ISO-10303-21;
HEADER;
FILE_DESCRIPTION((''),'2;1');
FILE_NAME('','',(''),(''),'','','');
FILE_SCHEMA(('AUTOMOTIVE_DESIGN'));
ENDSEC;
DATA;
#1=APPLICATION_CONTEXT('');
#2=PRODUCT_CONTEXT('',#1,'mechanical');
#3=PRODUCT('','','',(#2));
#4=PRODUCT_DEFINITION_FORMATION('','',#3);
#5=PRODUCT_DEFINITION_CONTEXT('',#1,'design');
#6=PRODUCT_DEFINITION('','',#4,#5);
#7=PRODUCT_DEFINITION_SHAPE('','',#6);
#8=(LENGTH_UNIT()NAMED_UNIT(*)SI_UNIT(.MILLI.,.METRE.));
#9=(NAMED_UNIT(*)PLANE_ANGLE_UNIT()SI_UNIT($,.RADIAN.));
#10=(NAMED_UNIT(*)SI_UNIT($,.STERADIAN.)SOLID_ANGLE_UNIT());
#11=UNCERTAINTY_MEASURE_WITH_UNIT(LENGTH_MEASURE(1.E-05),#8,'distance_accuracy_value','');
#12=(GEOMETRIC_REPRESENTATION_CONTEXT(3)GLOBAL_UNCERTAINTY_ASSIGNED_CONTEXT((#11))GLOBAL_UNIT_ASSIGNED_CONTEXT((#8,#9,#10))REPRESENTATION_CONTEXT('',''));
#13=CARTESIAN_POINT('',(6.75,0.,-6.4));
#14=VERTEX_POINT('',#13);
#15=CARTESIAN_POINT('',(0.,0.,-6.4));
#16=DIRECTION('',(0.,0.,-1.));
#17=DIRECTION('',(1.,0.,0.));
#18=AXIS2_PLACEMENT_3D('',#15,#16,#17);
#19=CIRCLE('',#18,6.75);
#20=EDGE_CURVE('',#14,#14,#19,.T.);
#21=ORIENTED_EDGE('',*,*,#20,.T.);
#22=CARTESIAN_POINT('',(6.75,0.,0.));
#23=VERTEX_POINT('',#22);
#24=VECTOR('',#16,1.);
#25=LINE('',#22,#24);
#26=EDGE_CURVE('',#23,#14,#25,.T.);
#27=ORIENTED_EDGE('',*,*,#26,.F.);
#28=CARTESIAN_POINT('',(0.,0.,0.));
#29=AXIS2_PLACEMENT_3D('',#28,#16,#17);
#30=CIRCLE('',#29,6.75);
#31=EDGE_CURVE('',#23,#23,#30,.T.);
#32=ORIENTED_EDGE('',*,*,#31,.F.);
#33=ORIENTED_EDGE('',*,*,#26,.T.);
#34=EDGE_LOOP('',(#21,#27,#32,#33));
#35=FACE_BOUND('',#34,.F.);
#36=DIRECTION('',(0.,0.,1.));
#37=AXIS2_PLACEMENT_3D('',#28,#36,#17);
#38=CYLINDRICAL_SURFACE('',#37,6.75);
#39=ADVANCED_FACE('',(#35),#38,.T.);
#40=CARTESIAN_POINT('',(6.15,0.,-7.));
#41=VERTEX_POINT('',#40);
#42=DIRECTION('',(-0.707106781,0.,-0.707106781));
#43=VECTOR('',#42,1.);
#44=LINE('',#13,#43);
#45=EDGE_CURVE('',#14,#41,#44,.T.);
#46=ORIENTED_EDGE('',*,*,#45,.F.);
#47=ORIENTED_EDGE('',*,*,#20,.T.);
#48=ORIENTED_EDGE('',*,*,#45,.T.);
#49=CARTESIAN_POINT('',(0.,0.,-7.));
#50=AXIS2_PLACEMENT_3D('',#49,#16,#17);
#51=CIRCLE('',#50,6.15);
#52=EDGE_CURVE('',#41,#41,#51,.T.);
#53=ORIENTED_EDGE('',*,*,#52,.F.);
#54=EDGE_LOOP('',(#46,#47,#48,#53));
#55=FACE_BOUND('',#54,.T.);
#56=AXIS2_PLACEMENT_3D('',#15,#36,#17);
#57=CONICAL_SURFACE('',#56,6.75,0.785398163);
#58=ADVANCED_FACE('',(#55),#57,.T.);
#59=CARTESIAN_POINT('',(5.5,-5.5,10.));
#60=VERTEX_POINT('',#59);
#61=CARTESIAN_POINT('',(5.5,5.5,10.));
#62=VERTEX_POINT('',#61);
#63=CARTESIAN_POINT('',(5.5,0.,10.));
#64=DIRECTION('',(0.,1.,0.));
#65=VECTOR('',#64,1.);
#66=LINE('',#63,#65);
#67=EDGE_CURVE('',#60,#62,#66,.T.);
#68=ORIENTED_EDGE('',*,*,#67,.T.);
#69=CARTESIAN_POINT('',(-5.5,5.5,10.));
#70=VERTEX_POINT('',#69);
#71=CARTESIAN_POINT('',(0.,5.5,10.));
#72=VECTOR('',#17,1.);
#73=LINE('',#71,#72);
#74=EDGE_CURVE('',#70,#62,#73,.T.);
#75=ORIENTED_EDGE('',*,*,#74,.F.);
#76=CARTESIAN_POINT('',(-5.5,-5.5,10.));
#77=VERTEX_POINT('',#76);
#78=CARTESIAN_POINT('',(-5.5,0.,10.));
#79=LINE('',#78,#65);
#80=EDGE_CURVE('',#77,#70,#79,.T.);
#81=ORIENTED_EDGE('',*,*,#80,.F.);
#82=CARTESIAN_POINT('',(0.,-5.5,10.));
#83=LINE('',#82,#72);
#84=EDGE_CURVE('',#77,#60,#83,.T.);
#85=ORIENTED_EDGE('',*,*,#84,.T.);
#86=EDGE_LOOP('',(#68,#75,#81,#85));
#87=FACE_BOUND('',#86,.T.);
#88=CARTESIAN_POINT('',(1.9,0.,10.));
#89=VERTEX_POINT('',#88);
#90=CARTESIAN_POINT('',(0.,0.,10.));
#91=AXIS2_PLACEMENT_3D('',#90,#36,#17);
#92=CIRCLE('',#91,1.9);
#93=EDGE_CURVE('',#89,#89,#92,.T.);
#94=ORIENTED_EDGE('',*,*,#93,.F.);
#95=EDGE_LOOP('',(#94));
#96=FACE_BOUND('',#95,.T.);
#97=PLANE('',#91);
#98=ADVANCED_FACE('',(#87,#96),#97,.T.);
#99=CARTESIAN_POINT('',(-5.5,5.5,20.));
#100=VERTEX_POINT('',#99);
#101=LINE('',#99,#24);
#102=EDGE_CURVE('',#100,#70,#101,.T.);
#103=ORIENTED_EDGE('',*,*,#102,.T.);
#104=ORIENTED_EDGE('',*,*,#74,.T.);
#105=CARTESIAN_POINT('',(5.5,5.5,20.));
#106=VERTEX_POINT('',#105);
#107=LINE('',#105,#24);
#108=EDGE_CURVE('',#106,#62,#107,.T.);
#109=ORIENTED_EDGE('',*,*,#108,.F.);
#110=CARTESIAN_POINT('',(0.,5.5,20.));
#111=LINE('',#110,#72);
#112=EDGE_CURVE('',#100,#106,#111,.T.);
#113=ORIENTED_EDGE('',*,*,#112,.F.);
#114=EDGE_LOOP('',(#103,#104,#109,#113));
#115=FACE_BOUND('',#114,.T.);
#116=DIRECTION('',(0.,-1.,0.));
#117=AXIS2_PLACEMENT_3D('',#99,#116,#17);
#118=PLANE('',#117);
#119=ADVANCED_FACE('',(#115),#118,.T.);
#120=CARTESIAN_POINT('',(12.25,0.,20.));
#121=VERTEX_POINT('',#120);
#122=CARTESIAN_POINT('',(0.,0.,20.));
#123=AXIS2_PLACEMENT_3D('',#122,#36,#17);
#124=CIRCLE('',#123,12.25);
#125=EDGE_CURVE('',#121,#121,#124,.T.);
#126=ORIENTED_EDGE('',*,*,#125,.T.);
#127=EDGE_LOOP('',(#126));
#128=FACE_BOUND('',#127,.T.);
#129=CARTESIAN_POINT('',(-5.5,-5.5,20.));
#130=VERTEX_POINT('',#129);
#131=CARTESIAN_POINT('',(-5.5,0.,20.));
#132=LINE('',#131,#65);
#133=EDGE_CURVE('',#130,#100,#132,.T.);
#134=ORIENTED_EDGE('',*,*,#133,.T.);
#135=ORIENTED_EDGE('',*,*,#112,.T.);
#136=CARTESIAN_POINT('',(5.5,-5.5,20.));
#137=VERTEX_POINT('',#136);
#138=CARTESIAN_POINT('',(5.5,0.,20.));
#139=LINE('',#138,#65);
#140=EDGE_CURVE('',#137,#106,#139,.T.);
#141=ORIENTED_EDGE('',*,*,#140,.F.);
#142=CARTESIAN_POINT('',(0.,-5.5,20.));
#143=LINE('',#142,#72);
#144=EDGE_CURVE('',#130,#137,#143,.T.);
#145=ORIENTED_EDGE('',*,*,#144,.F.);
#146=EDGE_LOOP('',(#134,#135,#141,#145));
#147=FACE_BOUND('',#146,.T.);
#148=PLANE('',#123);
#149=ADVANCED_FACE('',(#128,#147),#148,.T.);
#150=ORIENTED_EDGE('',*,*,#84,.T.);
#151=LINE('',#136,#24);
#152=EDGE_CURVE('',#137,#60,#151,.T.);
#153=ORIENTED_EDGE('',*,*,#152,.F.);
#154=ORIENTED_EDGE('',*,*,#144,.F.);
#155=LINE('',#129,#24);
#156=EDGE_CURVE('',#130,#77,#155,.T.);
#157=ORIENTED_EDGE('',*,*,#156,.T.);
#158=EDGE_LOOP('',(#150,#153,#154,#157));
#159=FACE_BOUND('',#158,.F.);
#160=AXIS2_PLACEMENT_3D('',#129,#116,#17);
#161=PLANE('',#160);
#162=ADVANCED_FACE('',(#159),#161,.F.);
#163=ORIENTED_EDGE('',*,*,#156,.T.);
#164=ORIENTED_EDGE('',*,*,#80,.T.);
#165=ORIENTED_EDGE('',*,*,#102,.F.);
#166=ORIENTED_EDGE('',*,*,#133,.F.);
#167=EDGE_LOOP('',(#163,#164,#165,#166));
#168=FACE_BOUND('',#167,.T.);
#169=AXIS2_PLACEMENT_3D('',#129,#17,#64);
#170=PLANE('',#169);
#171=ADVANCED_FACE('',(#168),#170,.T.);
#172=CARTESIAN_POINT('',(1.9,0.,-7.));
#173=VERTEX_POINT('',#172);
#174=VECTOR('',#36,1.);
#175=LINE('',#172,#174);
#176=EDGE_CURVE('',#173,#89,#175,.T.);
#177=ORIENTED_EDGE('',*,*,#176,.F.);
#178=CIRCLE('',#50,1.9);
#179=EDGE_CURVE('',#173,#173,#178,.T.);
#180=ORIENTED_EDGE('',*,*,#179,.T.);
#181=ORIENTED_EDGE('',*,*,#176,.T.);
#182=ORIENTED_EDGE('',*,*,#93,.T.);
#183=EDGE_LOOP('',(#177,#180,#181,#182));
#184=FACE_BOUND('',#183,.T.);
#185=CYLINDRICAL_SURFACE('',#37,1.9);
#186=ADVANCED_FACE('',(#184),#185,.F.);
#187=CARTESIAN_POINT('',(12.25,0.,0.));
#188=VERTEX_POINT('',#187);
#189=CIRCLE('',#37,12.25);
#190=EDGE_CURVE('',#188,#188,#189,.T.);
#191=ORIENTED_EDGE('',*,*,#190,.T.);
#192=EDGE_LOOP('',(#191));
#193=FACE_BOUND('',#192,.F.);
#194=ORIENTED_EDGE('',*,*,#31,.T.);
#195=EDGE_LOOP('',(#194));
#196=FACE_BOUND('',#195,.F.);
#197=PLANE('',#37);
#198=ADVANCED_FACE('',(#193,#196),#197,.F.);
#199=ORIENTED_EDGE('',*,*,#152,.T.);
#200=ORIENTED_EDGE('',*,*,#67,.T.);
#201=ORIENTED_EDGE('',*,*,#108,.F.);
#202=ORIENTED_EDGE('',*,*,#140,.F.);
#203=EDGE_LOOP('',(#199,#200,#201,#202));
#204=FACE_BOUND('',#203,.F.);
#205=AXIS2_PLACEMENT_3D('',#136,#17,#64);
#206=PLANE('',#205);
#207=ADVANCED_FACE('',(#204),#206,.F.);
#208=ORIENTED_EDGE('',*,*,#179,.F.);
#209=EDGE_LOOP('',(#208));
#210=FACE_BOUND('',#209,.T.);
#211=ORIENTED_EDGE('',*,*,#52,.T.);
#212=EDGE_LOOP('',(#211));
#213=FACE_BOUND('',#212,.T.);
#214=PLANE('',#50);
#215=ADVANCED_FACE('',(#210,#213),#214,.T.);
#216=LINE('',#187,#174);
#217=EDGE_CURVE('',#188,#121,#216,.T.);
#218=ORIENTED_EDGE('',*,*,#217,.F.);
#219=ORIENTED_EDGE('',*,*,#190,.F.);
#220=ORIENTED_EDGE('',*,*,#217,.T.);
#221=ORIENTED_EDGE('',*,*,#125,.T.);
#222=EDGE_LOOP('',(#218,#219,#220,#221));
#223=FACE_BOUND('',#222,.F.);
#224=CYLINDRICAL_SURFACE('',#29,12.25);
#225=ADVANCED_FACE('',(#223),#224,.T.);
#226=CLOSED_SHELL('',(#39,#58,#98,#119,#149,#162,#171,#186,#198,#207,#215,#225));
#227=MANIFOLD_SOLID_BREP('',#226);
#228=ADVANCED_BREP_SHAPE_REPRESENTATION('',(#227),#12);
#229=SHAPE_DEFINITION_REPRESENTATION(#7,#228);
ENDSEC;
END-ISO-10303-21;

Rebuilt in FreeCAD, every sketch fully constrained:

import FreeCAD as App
import Part
import Sketcher
Q = App.Units.Quantity


def edges_at(feature, points):
    """Names of the edges that pass closest to the given points."""
    edges = feature.Shape.Edges
    near = lambda p: min(range(len(edges)), key=lambda i: edges[i].distToShape(Part.Vertex(*p))[0])
    return sorted({f"Edge{near(p) + 1}" for p in points})


def add_polygon(sketch, points):
    """Adds a closed chain of lines whose ends are joined by coincident constraints."""
    first, n = sketch.GeometryCount, len(points)
    for a, b in zip(points, points[1:] + points[:1]):
        sketch.addGeometry(Part.LineSegment(App.Vector(*a, 0), App.Vector(*b, 0)), False)
    for i in range(n):
        sketch.addConstraint(Sketcher.Constraint("Coincident", first + i, 2, first + (i + 1) % n, 1))

doc = App.newDocument("Part")
body = doc.addObject("PartDesign::Body", "Body")

sketch1 = body.newObject("Sketcher::SketchObject", "Sketch")
sketch1.AttachmentSupport = (doc.getObject("XY_Plane"), [""])
sketch1.MapMode = "FlatFace"
sketch1.addGeometry(Part.Circle(App.Vector(0, 0, 0), App.Vector(0, 0, 1), 12), False)
sketch1.addConstraint(Sketcher.Constraint("Coincident", 0, 3, -1, 1))
sketch1.addConstraint(Sketcher.Constraint("Diameter", 0, Q("24.5 mm")))
pad1 = body.newObject("PartDesign::Pad", "Pad")
pad1.Profile = sketch1
pad1.Length = 20

sketch2 = body.newObject("Sketcher::SketchObject", "Sketch001")
sketch2.AttachmentSupport = (doc.getObject("XY_Plane"), [""])
sketch2.MapMode = "FlatFace"
sketch2.AttachmentOffset = App.Placement(App.Vector(0, 0, 20), App.Rotation())
add_polygon(sketch2, [(-6, 6), (-6, -6), (6, -6), (6, 6)])
sketch2.addConstraint(Sketcher.Constraint("Vertical", 0))
sketch2.addConstraint(Sketcher.Constraint("Horizontal", 1))
sketch2.addConstraint(Sketcher.Constraint("Vertical", 2))
sketch2.addConstraint(Sketcher.Constraint("Horizontal", 3))
sketch2.addConstraint(Sketcher.Constraint("Symmetric", 0, 2, 2, 2, -1, 1))
sketch2.addConstraint(Sketcher.Constraint("Equal", 3, 0))
sketch2.addConstraint(Sketcher.Constraint("DistanceX", 1, 1, 1, 2, Q("11 mm")))
pocket1 = body.newObject("PartDesign::Pocket", "Pocket")
pocket1.Profile = sketch2
pocket1.Length = 10

sketch3 = body.newObject("Sketcher::SketchObject", "Sketch002")
sketch3.AttachmentSupport = (doc.getObject("XY_Plane"), [""])
sketch3.MapMode = "FlatFace"
sketch3.AttachmentOffset = App.Placement(App.Vector(0, 0, 10), App.Rotation())
sketch3.addGeometry(Part.Circle(App.Vector(0, 0, 0), App.Vector(0, 0, 1), 1.9), False)
sketch3.addConstraint(Sketcher.Constraint("Coincident", 0, 3, -1, 1))
sketch3.addConstraint(Sketcher.Constraint("Diameter", 0, Q("3.8 mm")))
pocket2 = body.newObject("PartDesign::Pocket", "Pocket001")
pocket2.Profile = sketch3
pocket2.Length = 40

sketch4 = body.newObject("Sketcher::SketchObject", "Sketch003")
sketch4.AttachmentSupport = (doc.getObject("XY_Plane"), [""])
sketch4.MapMode = "FlatFace"
sketch4.addGeometry(Part.Circle(App.Vector(0, 0, 0), App.Vector(0, 0, 1), 6.8), False)
sketch4.addGeometry(Part.Circle(App.Vector(0, 0, 0), App.Vector(0, 0, 1), 1.9), False)
sketch4.addConstraint(Sketcher.Constraint("Coincident", 0, 3, -1, 1))
sketch4.addConstraint(Sketcher.Constraint("Coincident", 1, 3, -1, 1))
sketch4.addConstraint(Sketcher.Constraint("Diameter", 0, Q("13.5 mm")))
sketch4.addConstraint(Sketcher.Constraint("Diameter", 1, Q("3.8 mm")))
pad2 = body.newObject("PartDesign::Pad", "Pad001")
pad2.Profile = sketch4
pad2.Length = 7
pad2.Reversed = True
doc.recompute()

chamfer = body.newObject("PartDesign::Chamfer", "Chamfer")
chamfer.Base = (pad2, edges_at(pad2, [(-6.75, 0, -7)]))
chamfer.Size = 0.6

doc.recompute()
